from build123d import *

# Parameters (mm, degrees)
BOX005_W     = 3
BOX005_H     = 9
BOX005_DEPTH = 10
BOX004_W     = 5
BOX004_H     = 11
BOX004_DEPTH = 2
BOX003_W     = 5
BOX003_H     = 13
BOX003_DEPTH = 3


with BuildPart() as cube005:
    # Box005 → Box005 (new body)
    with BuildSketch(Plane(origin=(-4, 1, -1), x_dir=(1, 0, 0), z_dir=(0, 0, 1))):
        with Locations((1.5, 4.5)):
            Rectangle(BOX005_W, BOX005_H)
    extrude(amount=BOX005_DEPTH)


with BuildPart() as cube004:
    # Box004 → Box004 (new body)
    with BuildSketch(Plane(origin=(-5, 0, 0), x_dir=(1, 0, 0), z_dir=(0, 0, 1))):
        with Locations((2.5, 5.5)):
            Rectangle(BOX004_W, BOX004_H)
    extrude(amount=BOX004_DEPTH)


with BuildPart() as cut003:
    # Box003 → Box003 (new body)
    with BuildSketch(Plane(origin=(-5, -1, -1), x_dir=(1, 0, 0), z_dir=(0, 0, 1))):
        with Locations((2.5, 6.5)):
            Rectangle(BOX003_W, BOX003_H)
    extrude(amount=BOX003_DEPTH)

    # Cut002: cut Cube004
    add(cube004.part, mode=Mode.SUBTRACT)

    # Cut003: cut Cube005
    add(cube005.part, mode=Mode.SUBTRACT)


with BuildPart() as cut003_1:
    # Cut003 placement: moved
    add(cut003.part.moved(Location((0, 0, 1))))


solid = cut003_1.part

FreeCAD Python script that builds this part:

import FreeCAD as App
import Part
import Sketcher

V = App.Vector
Q = App.Units.Quantity


def add_polygon(sketch, points):
    """Adds a closed chain of lines whose ends are joined by coincident constraints."""
    first, n = sketch.GeometryCount, len(points)
    for a, b in zip(points, points[1:] + points[:1]):
        sketch.addGeometry(Part.LineSegment(App.Vector(*a, 0), App.Vector(*b, 0)), False)
    for i in range(n):
        sketch.addConstraint(Sketcher.Constraint("Coincident", first + i, 2, first + (i + 1) % n, 1))

doc = App.newDocument("Part")
params = doc.addObject("Spreadsheet::Sheet", "Params")
for row, (alias, value) in enumerate([
    ("sketch1_width", "3 mm"),
    ("sketch1_height", "9 mm"),
    ("pad1_length", "10 mm"),
    ("sketch2_width", "5 mm"),
    ("sketch2_height", "11 mm"),
    ("pad2_length", "2 mm"),
    ("sketch3_width", "5 mm"),
    ("sketch3_height", "13 mm"),
    ("pad3_length", "3 mm"),
], start=1):
    params.set(f"A{row}", alias)
    params.set(f"B{row}", "=" + value)
    params.setAlias(f"B{row}", alias)

body = doc.addObject("PartDesign::Body", "Body")

sketch1 = body.newObject("Sketcher::SketchObject", "Sketch")
sketch1.AttachmentSupport = (doc.getObject("XY_Plane"), [""])
sketch1.MapMode = "FlatFace"
sketch1.AttachmentOffset = App.Placement(V(0, 0, -1), App.Rotation())
add_polygon(sketch1, [(-4, 10), (-4, 1), (-1, 1), (-1, 10)])
sketch1.addConstraint(Sketcher.Constraint("Vertical", 0))
sketch1.addConstraint(Sketcher.Constraint("Horizontal", 1))
sketch1.addConstraint(Sketcher.Constraint("Vertical", 2))
sketch1.addConstraint(Sketcher.Constraint("Horizontal", 3))
sketch1.addConstraint(Sketcher.Constraint("DistanceX", 1, 1, 1, 2, Q("3 mm")))
sketch1.addConstraint(Sketcher.Constraint("DistanceY", 0, 2, 0, 1, Q("9 mm")))
sketch1.addConstraint(Sketcher.Constraint("DistanceX", 0, 2, -1, 1, Q("4 mm")))
sketch1.addConstraint(Sketcher.Constraint("DistanceY", -1, 1, 0, 2, Q("1 mm")))
sketch1.setExpression("Constraints[8]", "Params.sketch1_width")
sketch1.setExpression("Constraints[9]", "Params.sketch1_height")
pad1 = body.newObject("PartDesign::Pad", "Pad")
pad1.Profile = sketch1
pad1.setExpression("Length", "Params.pad1_length")
body2 = doc.addObject("PartDesign::Body", "Body001")

sketch2 = body2.newObject("Sketcher::SketchObject", "Sketch001")
sketch2.AttachmentSupport = (doc.getObject("XY_Plane001"), [""])
sketch2.MapMode = "FlatFace"
add_polygon(sketch2, [(-5, 11), (-5, 0), (0, 0), (0, 11)])
sketch2.addConstraint(Sketcher.Constraint("Vertical", 0))
sketch2.addConstraint(Sketcher.Constraint("Horizontal", 1))
sketch2.addConstraint(Sketcher.Constraint("Vertical", 2))
sketch2.addConstraint(Sketcher.Constraint("Horizontal", 3))
sketch2.addConstraint(Sketcher.Constraint("Coincident", 1, 2, -1, 1))
sketch2.addConstraint(Sketcher.Constraint("DistanceX", 1, 1, 1, 2, Q("5 mm")))
sketch2.addConstraint(Sketcher.Constraint("DistanceY", 0, 2, 0, 1, Q("11 mm")))
sketch2.setExpression("Constraints[9]", "Params.sketch2_width")
sketch2.setExpression("Constraints[10]", "Params.sketch2_height")
pad2 = body2.newObject("PartDesign::Pad", "Pad001")
pad2.Profile = sketch2
pad2.setExpression("Length", "Params.pad2_length")
body3 = doc.addObject("PartDesign::Body", "Body002")

sketch3 = body3.newObject("Sketcher::SketchObject", "Sketch002")
sketch3.AttachmentSupport = (doc.getObject("XY_Plane002"), [""])
sketch3.MapMode = "FlatFace"
sketch3.AttachmentOffset = App.Placement(V(0, 0, -1), App.Rotation())
add_polygon(sketch3, [(-5, 12), (-5, -1), (0, -1), (0, 12)])
sketch3.addConstraint(Sketcher.Constraint("Vertical", 0))
sketch3.addConstraint(Sketcher.Constraint("Horizontal", 1))
sketch3.addConstraint(Sketcher.Constraint("Vertical", 2))
sketch3.addConstraint(Sketcher.Constraint("Horizontal", 3))
sketch3.addConstraint(Sketcher.Constraint("PointOnObject", 1, 2, -2))
sketch3.addConstraint(Sketcher.Constraint("DistanceX", 1, 1, 1, 2, Q("5 mm")))
sketch3.addConstraint(Sketcher.Constraint("DistanceY", 0, 2, 0, 1, Q("13 mm")))
sketch3.addConstraint(Sketcher.Constraint("DistanceY", 0, 2, -1, 1, Q("1 mm")))
sketch3.setExpression("Constraints[9]", "Params.sketch3_width")
sketch3.setExpression("Constraints[10]", "Params.sketch3_height")
pad3 = body3.newObject("PartDesign::Pad", "Pad002")
pad3.Profile = sketch3
pad3.setExpression("Length", "Params.pad3_length")
doc.recompute()

boolean = body3.newObject("PartDesign::Boolean", "Boolean")
boolean.Type = "Cut"
boolean.addObjects([body2])
doc.recompute()

boolean2 = body3.newObject("PartDesign::Boolean", "Boolean001")
boolean2.Type = "Cut"
boolean2.addObjects([body])
body4 = doc.addObject("PartDesign::Body", "Body003")
doc.recompute()

body3.Placement = App.Placement(V(0, 0, 1), App.Rotation(V(0, 0, 1), 0))
boolean3 = body4.newObject("PartDesign::Boolean", "Boolean002")
boolean3.Type = "Fuse"
boolean3.addObjects([body3])

doc.recompute()
